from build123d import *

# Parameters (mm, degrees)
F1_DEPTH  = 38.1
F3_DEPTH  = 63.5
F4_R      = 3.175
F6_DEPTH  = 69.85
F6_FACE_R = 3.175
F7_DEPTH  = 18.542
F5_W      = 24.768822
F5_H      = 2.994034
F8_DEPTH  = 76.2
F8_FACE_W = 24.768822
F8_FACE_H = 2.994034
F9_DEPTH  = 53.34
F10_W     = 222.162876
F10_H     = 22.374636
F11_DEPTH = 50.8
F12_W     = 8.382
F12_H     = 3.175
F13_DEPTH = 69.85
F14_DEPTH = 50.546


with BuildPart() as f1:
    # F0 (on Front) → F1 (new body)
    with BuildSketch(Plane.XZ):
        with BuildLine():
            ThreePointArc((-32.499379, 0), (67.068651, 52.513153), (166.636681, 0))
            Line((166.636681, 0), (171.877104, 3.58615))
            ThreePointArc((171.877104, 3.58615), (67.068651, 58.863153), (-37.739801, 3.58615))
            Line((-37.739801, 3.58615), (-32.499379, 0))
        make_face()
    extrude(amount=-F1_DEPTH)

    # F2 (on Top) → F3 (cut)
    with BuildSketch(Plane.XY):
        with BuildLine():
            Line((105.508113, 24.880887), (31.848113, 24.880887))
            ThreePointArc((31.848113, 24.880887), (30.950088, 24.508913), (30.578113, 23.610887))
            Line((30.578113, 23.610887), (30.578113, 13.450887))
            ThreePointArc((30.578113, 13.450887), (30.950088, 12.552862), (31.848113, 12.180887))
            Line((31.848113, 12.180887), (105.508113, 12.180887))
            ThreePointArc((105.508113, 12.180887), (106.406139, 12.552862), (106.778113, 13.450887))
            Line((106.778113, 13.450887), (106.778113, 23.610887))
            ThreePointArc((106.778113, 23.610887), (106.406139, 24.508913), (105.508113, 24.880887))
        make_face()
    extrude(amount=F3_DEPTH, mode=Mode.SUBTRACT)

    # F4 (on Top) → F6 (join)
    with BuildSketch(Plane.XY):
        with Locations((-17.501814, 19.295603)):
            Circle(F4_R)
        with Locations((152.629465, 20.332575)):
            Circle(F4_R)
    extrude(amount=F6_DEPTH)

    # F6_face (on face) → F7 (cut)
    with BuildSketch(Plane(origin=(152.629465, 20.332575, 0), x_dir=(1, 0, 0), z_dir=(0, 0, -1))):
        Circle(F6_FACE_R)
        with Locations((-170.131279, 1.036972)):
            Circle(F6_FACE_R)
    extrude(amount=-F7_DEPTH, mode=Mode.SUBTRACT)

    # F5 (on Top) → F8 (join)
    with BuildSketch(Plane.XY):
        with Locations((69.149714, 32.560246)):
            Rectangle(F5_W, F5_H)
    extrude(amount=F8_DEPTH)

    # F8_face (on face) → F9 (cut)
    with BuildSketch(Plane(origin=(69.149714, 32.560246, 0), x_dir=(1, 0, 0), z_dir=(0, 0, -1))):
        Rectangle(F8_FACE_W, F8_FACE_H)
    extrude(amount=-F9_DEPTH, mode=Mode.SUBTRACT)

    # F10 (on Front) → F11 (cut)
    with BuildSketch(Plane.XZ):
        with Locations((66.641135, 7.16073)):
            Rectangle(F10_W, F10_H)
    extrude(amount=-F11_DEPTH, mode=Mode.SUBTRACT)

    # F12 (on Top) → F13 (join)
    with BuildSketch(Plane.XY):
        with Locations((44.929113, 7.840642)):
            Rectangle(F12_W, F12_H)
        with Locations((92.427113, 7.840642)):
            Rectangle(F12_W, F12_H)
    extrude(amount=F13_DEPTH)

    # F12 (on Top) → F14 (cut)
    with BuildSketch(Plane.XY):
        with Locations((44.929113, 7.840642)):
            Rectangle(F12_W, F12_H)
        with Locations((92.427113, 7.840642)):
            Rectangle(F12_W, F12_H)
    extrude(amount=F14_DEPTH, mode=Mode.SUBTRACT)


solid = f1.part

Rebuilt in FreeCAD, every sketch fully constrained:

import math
import FreeCAD as App
import Part
import Sketcher
from FreeCAD import Vector
Q = App.Units.Quantity


def add_polygon(sketch, points):
    """Adds a closed chain of lines whose ends are joined by coincident constraints."""
    first, n = sketch.GeometryCount, len(points)
    for a, b in zip(points, points[1:] + points[:1]):
        sketch.addGeometry(Part.LineSegment(App.Vector(*a, 0), App.Vector(*b, 0)), False)
    for i in range(n):
        sketch.addConstraint(Sketcher.Constraint("Coincident", first + i, 2, first + (i + 1) % n, 1))

doc = App.newDocument("Part")
body = doc.addObject("PartDesign::Body", "Body")

sketch1 = body.newObject("Sketcher::SketchObject", "Sketch")
sketch1.AttachmentSupport = (doc.getObject("XZ_Plane"), [""])
sketch1.MapMode = "FlatFace"
sketch1.addGeometry(Part.ArcOfCircle(Part.Circle(Vector(67, -68, 0), Vector(0, 0, 1), 121), math.radians(34), math.radians(146)), False)
sketch1.addGeometry(Part.LineSegment(Vector(167, 0, 0), Vector(172, 4, 0)), False)
sketch1.addGeometry(Part.ArcOfCircle(Part.Circle(Vector(67, -68, 0), Vector(0, 0, 1), 127), math.radians(34), math.radians(146)), False)
sketch1.addGeometry(Part.LineSegment(Vector(-38, 4, 0), Vector(-32, 0, 0)), False)
sketch1.addConstraint(Sketcher.Constraint("Coincident", 0, 1, 1, 1))
sketch1.addConstraint(Sketcher.Constraint("Coincident", 1, 2, 2, 1))
sketch1.addConstraint(Sketcher.Constraint("Coincident", 2, 2, 3, 1))
sketch1.addConstraint(Sketcher.Constraint("Coincident", 3, 2, 0, 2))
sketch1.addConstraint(Sketcher.Constraint("Coincident", 2, 3, 0, 3))
sketch1.addConstraint(Sketcher.Constraint("PointOnObject", 0, 1, -1))
sketch1.addConstraint(Sketcher.Constraint("PointOnObject", 3, 2, -1))
sketch1.addConstraint(Sketcher.Constraint("Horizontal", 1, 2, 2, 2))
sketch1.addConstraint(Sketcher.Constraint("Radius", 2, Q("5 in")))
sketch1.addConstraint(Sketcher.Constraint("Radius", 0, Q("4.75 in")))
sketch1.addConstraint(Sketcher.Constraint("DistanceX", 2, 2, -1, 1, Q("37.739801 mm")))
sketch1.addConstraint(Sketcher.Constraint("DistanceX", -1, 1, 0, 3, Q("67.068651 mm")))
sketch1.addConstraint(Sketcher.Constraint("DistanceX", -1, 1, 0, 1, Q("166.636681 mm")))
pad1 = body.newObject("PartDesign::Pad", "Pad")
pad1.Profile = sketch1
pad1.Length = Q("1.5 in")
pad1.Reversed = True

sketch2 = body.newObject("Sketcher::SketchObject", "Sketch001")
sketch2.AttachmentSupport = (doc.getObject("XY_Plane"), [""])
sketch2.MapMode = "FlatFace"
sketch2.addGeometry(Part.LineSegment(Vector(105.5, 24.9, 0), Vector(31.8, 24.9, 0)), False)
sketch2.addGeometry(Part.ArcOfCircle(Part.Circle(Vector(31.8, 23.6, 0), Vector(0, 0, 1), 1.3), math.radians(90), math.radians(180)), False)
sketch2.addGeometry(Part.LineSegment(Vector(30.6, 23.6, 0), Vector(30.6, 13.5, 0)), False)
sketch2.addGeometry(Part.ArcOfCircle(Part.Circle(Vector(31.8, 13.5, 0), Vector(0, 0, 1), 1.3), math.radians(-180), math.radians(-90)), False)
sketch2.addGeometry(Part.LineSegment(Vector(31.8, 12.2, 0), Vector(105.5, 12.2, 0)), False)
sketch2.addGeometry(Part.ArcOfCircle(Part.Circle(Vector(105.5, 13.5, 0), Vector(0, 0, 1), 1.3), math.radians(-90), math.radians(0)), False)
sketch2.addGeometry(Part.LineSegment(Vector(106.8, 13.5, 0), Vector(106.8, 23.6, 0)), False)
sketch2.addGeometry(Part.ArcOfCircle(Part.Circle(Vector(105.5, 23.6, 0), Vector(0, 0, 1), 1.3), math.radians(0), math.radians(90)), False)
sketch2.addConstraint(Sketcher.Constraint("Tangent", 0, 2, 1, 1))
sketch2.addConstraint(Sketcher.Constraint("Tangent", 1, 2, 2, 1))
sketch2.addConstraint(Sketcher.Constraint("Tangent", 2, 2, 3, 1))
sketch2.addConstraint(Sketcher.Constraint("Tangent", 3, 2, 4, 1))
sketch2.addConstraint(Sketcher.Constraint("Tangent", 4, 2, 5, 1))
sketch2.addConstraint(Sketcher.Constraint("Tangent", 5, 2, 6, 1))
sketch2.addConstraint(Sketcher.Constraint("Tangent", 6, 2, 7, 1))
sketch2.addConstraint(Sketcher.Constraint("Tangent", 7, 2, 0, 1))
sketch2.addConstraint(Sketcher.Constraint("Horizontal", 0))
sketch2.addConstraint(Sketcher.Constraint("Vertical", 2))
sketch2.addConstraint(Sketcher.Constraint("Horizontal", 4))
sketch2.addConstraint(Sketcher.Constraint("Vertical", 6))
sketch2.addConstraint(Sketcher.Constraint("Equal", 1, 3))
sketch2.addConstraint(Sketcher.Constraint("Equal", 3, 5))
sketch2.addConstraint(Sketcher.Constraint("Equal", 5, 7))
sketch2.addConstraint(Sketcher.Constraint("Radius", 1, Q("0.05 in")))
sketch2.addConstraint(Sketcher.Constraint("DistanceX", 0, 2, 0, 1, Q("2.9 in")))
sketch2.addConstraint(Sketcher.Constraint("DistanceY", 2, 2, 2, 1, Q("0.4 in")))
sketch2.addConstraint(Sketcher.Constraint("DistanceY", -1, 1, 3, 3, Q("13.450889 mm")))
sketch2.addConstraint(Sketcher.Constraint("DistanceX", -1, 1, 1, 3, Q("31.848113 mm")))
pocket1 = body.newObject("PartDesign::Pocket", "Pocket")
pocket1.Profile = sketch2
pocket1.Length = Q("2.5 in")
pocket1.Reversed = True

sketch3 = body.newObject("Sketcher::SketchObject", "Sketch002")
sketch3.AttachmentSupport = (doc.getObject("XY_Plane"), [""])
sketch3.MapMode = "FlatFace"
sketch3.addGeometry(Part.Circle(Vector(-17.5, 19.3, 0), Vector(0, 0, 1), 3.2), False)
sketch3.addGeometry(Part.Circle(Vector(152.6, 20.3, 0), Vector(0, 0, 1), 3.2), False)
sketch3.addConstraint(Sketcher.Constraint("Equal", 0, 1))
sketch3.addConstraint(Sketcher.Constraint("Diameter", 0, Q("0.25 in")))
sketch3.addConstraint(Sketcher.Constraint("DistanceX", 0, 3, 1, 3, Q("170.131279 mm")))
sketch3.addConstraint(Sketcher.Constraint("DistanceY", 0, 3, 1, 3, Q("1.036972 mm")))
sketch3.addConstraint(Sketcher.Constraint("DistanceX", 0, 3, -1, 1, Q("17.501814 mm")))
sketch3.addConstraint(Sketcher.Constraint("DistanceY", -1, 1, 0, 3, Q("19.295603 mm")))
pad2 = body.newObject("PartDesign::Pad", "Pad001")
pad2.Profile = sketch3
pad2.Length = Q("2.75 in")

sketch4 = body.newObject("Sketcher::SketchObject", "Sketch003")
sketch4.AttachmentSupport = (doc.getObject("XY_Plane"), [""])
sketch4.MapMode = "FlatFace"
sketch4.addGeometry(Part.Circle(Vector(152.6, 20.3, 0), Vector(0, 0, 1), 3.2), False)
sketch4.addGeometry(Part.Circle(Vector(-17.5, 19.3, 0), Vector(0, 0, 1), 3.2), False)
sketch4.addConstraint(Sketcher.Constraint("Equal", 0, 1))
sketch4.addConstraint(Sketcher.Constraint("Diameter", 0, Q("0.25 in")))
sketch4.addConstraint(Sketcher.Constraint("DistanceX", 1, 3, 0, 3, Q("170.131279 mm")))
sketch4.addConstraint(Sketcher.Constraint("DistanceY", 1, 3, 0, 3, Q("1.036972 mm")))
sketch4.addConstraint(Sketcher.Constraint("DistanceX", -1, 1, 0, 3, Q("152.629465 mm")))
sketch4.addConstraint(Sketcher.Constraint("DistanceY", -1, 1, 0, 3, Q("20.332575 mm")))
pocket2 = body.newObject("PartDesign::Pocket", "Pocket001")
pocket2.Profile = sketch4
pocket2.Length = Q("0.73 in")
pocket2.Reversed = True

sketch5 = body.newObject("Sketcher::SketchObject", "Sketch004")
sketch5.AttachmentSupport = (doc.getObject("XY_Plane"), [""])
sketch5.MapMode = "FlatFace"
add_polygon(sketch5, [(56.8, 34.1), (56.8, 31.1), (81.5, 31.1), (81.5, 34.1)])
sketch5.addConstraint(Sketcher.Constraint("Vertical", 0))
sketch5.addConstraint(Sketcher.Constraint("Horizontal", 1))
sketch5.addConstraint(Sketcher.Constraint("Vertical", 2))
sketch5.addConstraint(Sketcher.Constraint("Horizontal", 3))
sketch5.addConstraint(Sketcher.Constraint("DistanceX", 1, 1, 1, 2, Q("24.768822 mm")))
sketch5.addConstraint(Sketcher.Constraint("DistanceY", 0, 2, 0, 1, Q("2.994034 mm")))
sketch5.addConstraint(Sketcher.Constraint("DistanceY", -1, 1, 0, 2, Q("31.063229 mm")))
sketch5.addConstraint(Sketcher.Constraint("DistanceX", -1, 1, 0, 2, Q("56.765303 mm")))
pad3 = body.newObject("PartDesign::Pad", "Pad002")
pad3.Profile = sketch5
pad3.Length = Q("3 in")

sketch6 = body.newObject("Sketcher::SketchObject", "Sketch005")
sketch6.AttachmentSupport = (doc.getObject("XY_Plane"), [""])
sketch6.MapMode = "FlatFace"
add_polygon(sketch6, [(56.8, 31.1), (56.8, 34.1), (81.5, 34.1), (81.5, 31.1)])
sketch6.addConstraint(Sketcher.Constraint("Vertical", 0))
sketch6.addConstraint(Sketcher.Constraint("Horizontal", 1))
sketch6.addConstraint(Sketcher.Constraint("Vertical", 2))
sketch6.addConstraint(Sketcher.Constraint("Horizontal", 3))
sketch6.addConstraint(Sketcher.Constraint("DistanceX", 1, 1, 1, 2, Q("24.768822 mm")))
sketch6.addConstraint(Sketcher.Constraint("DistanceY", 0, 1, 0, 2, Q("2.994034 mm")))
sketch6.addConstraint(Sketcher.Constraint("DistanceY", -1, 1, 2, 2, Q("31.063229 mm")))
sketch6.addConstraint(Sketcher.Constraint("DistanceX", -1, 1, 0, 2, Q("56.765303 mm")))
pocket3 = body.newObject("PartDesign::Pocket", "Pocket002")
pocket3.Profile = sketch6
pocket3.Length = Q("2.1 in")
pocket3.Reversed = True

sketch7 = body.newObject("Sketcher::SketchObject", "Sketch006")
sketch7.AttachmentSupport = (doc.getObject("XZ_Plane"), [""])
sketch7.MapMode = "FlatFace"
add_polygon(sketch7, [(-44, 18), (-44, -4), (178, -4), (178, 18)])
sketch7.addConstraint(Sketcher.Constraint("Vertical", 0))
sketch7.addConstraint(Sketcher.Constraint("Horizontal", 1))
sketch7.addConstraint(Sketcher.Constraint("Vertical", 2))
sketch7.addConstraint(Sketcher.Constraint("Horizontal", 3))
sketch7.addConstraint(Sketcher.Constraint("DistanceX", 1, 1, 1, 2, Q("222.162876 mm")))
sketch7.addConstraint(Sketcher.Constraint("DistanceY", 0, 2, 0, 1, Q("22.374636 mm")))
sketch7.addConstraint(Sketcher.Constraint("DistanceY", 0, 2, -1, 1, Q("4.026588 mm")))
sketch7.addConstraint(Sketcher.Constraint("DistanceX", 0, 2, -1, 1, Q("44.440303 mm")))
pocket4 = body.newObject("PartDesign::Pocket", "Pocket003")
pocket4.Profile = sketch7
pocket4.Length = Q("2 in")

sketch8 = body.newObject("Sketcher::SketchObject", "Sketch007")
sketch8.AttachmentSupport = (doc.getObject("XY_Plane"), [""])
sketch8.MapMode = "FlatFace"
add_polygon(sketch8, [(40.7, 9.4), (40.7, 6.3), (49.1, 6.3), (49.1, 9.4)])
add_polygon(sketch8, [(88.2, 9.4), (88.2, 6.3), (96.6, 6.3), (96.6, 9.4)])
sketch8.addConstraint(Sketcher.Constraint("Vertical", 0))
sketch8.addConstraint(Sketcher.Constraint("Horizontal", 1))
sketch8.addConstraint(Sketcher.Constraint("Vertical", 2))
sketch8.addConstraint(Sketcher.Constraint("Horizontal", 3))
sketch8.addConstraint(Sketcher.Constraint("Vertical", 4))
sketch8.addConstraint(Sketcher.Constraint("Horizontal", 5))
sketch8.addConstraint(Sketcher.Constraint("Vertical", 6))
sketch8.addConstraint(Sketcher.Constraint("Horizontal", 7))
sketch8.addConstraint(Sketcher.Constraint("Horizontal", 1, 2, 4, 2))
sketch8.addConstraint(Sketcher.Constraint("Horizontal", 3, 2, 6, 2))
sketch8.addConstraint(Sketcher.Constraint("Equal", 3, 5))
sketch8.addConstraint(Sketcher.Constraint("DistanceX", 1, 1, 1, 2, Q("0.33 in")))
sketch8.addConstraint(Sketcher.Constraint("DistanceX", 0, 2, 5, 2, Q("2.2 in")))
sketch8.addConstraint(Sketcher.Constraint("DistanceY", 0, 2, 0, 1, Q("0.125 in")))
sketch8.addConstraint(Sketcher.Constraint("DistanceY", -1, 1, 2, 2, Q("9.428142 mm")))
sketch8.addConstraint(Sketcher.Constraint("DistanceX", -1, 1, 0, 2, Q("40.738113 mm")))
pad4 = body.newObject("PartDesign::Pad", "Pad003")
pad4.Profile = sketch8
pad4.Length = Q("2.75 in")

sketch9 = body.newObject("Sketcher::SketchObject", "Sketch008")
sketch9.AttachmentSupport = (doc.getObject("XY_Plane"), [""])
sketch9.MapMode = "FlatFace"
add_polygon(sketch9, [(40.7, 9.4), (40.7, 6.3), (49.1, 6.3), (49.1, 9.4)])
add_polygon(sketch9, [(88.2, 9.4), (88.2, 6.3), (96.6, 6.3), (96.6, 9.4)])
sketch9.addConstraint(Sketcher.Constraint("Vertical", 0))
sketch9.addConstraint(Sketcher.Constraint("Horizontal", 1))
sketch9.addConstraint(Sketcher.Constraint("Vertical", 2))
sketch9.addConstraint(Sketcher.Constraint("Horizontal", 3))
sketch9.addConstraint(Sketcher.Constraint("Vertical", 4))
sketch9.addConstraint(Sketcher.Constraint("Horizontal", 5))
sketch9.addConstraint(Sketcher.Constraint("Vertical", 6))
sketch9.addConstraint(Sketcher.Constraint("Horizontal", 7))
sketch9.addConstraint(Sketcher.Constraint("Horizontal", 1, 2, 4, 2))
sketch9.addConstraint(Sketcher.Constraint("Horizontal", 3, 2, 6, 2))
sketch9.addConstraint(Sketcher.Constraint("Equal", 3, 5))
sketch9.addConstraint(Sketcher.Constraint("DistanceX", 1, 1, 1, 2, Q("0.33 in")))
sketch9.addConstraint(Sketcher.Constraint("DistanceX", 0, 2, 5, 2, Q("2.2 in")))
sketch9.addConstraint(Sketcher.Constraint("DistanceY", 0, 2, 0, 1, Q("0.125 in")))
sketch9.addConstraint(Sketcher.Constraint("DistanceY", -1, 1, 2, 2, Q("9.428142 mm")))
sketch9.addConstraint(Sketcher.Constraint("DistanceX", -1, 1, 0, 2, Q("40.738113 mm")))
pocket5 = body.newObject("PartDesign::Pocket", "Pocket004")
pocket5.Profile = sketch9
pocket5.Length = Q("1.99 in")
pocket5.Reversed = True

doc.recompute()
